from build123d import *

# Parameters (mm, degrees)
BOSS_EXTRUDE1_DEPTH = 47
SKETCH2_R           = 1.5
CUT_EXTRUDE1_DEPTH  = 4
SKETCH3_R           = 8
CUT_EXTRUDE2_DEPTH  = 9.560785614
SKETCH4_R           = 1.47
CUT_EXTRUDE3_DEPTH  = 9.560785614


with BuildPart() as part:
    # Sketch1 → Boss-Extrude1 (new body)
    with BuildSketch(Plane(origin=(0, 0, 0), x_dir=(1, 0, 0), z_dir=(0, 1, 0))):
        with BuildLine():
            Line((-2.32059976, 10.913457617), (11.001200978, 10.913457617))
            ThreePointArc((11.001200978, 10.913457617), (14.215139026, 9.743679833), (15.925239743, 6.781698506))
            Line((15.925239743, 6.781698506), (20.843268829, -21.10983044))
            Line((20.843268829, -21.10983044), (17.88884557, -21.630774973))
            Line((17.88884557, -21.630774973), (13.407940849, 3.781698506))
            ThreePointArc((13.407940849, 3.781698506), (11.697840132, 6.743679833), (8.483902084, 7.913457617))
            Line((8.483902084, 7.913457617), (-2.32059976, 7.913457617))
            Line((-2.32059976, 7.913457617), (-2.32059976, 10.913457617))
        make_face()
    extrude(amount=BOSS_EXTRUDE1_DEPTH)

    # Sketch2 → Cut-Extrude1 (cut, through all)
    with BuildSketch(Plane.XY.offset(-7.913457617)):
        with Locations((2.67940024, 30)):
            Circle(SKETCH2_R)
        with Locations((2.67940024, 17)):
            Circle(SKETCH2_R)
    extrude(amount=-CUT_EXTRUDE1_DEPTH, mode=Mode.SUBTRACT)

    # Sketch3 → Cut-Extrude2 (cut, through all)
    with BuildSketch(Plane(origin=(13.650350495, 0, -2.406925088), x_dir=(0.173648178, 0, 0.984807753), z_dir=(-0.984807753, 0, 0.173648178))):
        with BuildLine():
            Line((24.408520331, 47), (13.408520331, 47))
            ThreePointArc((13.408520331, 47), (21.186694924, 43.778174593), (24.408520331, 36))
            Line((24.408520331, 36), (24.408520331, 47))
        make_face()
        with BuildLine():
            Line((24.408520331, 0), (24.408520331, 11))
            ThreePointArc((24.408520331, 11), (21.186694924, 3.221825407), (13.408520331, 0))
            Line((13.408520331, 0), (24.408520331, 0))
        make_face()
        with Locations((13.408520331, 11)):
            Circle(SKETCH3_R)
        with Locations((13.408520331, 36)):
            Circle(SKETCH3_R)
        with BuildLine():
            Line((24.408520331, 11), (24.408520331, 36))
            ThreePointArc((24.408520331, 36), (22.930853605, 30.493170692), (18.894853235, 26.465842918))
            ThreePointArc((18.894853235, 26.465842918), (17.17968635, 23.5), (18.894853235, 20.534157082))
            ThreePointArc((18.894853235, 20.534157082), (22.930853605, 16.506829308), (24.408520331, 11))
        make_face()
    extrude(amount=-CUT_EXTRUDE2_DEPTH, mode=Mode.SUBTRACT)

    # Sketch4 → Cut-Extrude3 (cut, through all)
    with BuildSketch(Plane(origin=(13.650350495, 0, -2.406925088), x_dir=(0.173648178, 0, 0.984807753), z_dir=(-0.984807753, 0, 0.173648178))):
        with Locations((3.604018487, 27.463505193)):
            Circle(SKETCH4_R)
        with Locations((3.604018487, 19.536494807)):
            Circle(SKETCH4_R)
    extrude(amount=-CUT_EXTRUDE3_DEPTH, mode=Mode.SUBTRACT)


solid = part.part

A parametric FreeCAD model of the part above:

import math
import FreeCAD as App
import Part
import Sketcher

V = App.Vector
Q = App.Units.Quantity

doc = App.newDocument("Part")
body = doc.addObject("PartDesign::Body", "Body")

sketch1 = doc.addObject("Sketcher::SketchObject", "Sketch")
body.addObject(sketch1)
sketch1.AttachmentSupport = (doc.XZ_Plane, [""])
sketch1.MapMode = "FlatFace"
sketch1.addGeometry([
    Part.LineSegment(V(11, -10.9, 0), V(-2.3, -10.9, 0)),
    Part.LineSegment(V(-2.3, -10.9, 0), V(-2.3, -7.9, 0)),
    Part.LineSegment(V(-2.3, -7.9, 0), V(8.5, -7.9, 0)),
    Part.ArcOfCircle(Part.Circle(V(8.5, -2.9, 0), V(0, 0, 1), 5), math.radians(-90), math.radians(-10)),
    Part.LineSegment(V(13.4, -3.8, 0), V(17.9, 21.6, 0)),
    Part.LineSegment(V(17.9, 21.6, 0), V(20.8, 21.1, 0)),
    Part.LineSegment(V(20.8, 21.1, 0), V(15.9, -6.8, 0)),
    Part.ArcOfCircle(Part.Circle(V(11, -5.9, 0), V(0, 0, 1), 5), math.radians(-90), math.radians(-10)),
], False)
sketch1.addConstraint([
    Sketcher.Constraint("Coincident", 0, 2, 1, 1),
    Sketcher.Constraint("Coincident", 1, 2, 2, 1),
    Sketcher.Constraint("Tangent", 2, 2, 3, 1),
    Sketcher.Constraint("Tangent", 3, 2, 4, 1),
    Sketcher.Constraint("Coincident", 4, 2, 5, 1),
    Sketcher.Constraint("Coincident", 5, 2, 6, 1),
    Sketcher.Constraint("Tangent", 6, 2, 7, 2),
    Sketcher.Constraint("Tangent", 7, 1, 0, 1),
    Sketcher.Constraint("Horizontal", 0),
    Sketcher.Constraint("Vertical", 1),
    Sketcher.Constraint("Horizontal", 2),
    Sketcher.Constraint("Equal", 3, 7),
    Sketcher.Constraint("Perpendicular", 4, 5),
    Sketcher.Constraint("Perpendicular", 5, 6),
    Sketcher.Constraint("Radius", 3, Q("5 mm")),
    Sketcher.Constraint("DistanceY", 1, 1, 1, 2, Q("3 mm")),
    Sketcher.Constraint("Angle", 4, Q("80 deg")),
    Sketcher.Constraint("Distance", 5, Q("3 mm")),
    Sketcher.Constraint("DistanceX", 0, 2, 0, 1, Q("13.321801 mm")),
    Sketcher.Constraint("Distance", 4, Q("25.804502 mm")),
    Sketcher.Constraint("DistanceX", -1, 1, 7, 3, Q("11.001201 mm")),
    Sketcher.Constraint("DistanceY", 3, 2, -1, 1, Q("3.781699 mm")),
])
pad1 = doc.addObject("PartDesign::Pad", "Pad")
body.addObject(pad1)
pad1.Profile = sketch1
pad1.Length = 47
pad1.Reversed = True

sketch2 = doc.addObject("Sketcher::SketchObject", "Sketch001")
body.addObject(sketch2)
sketch2.AttachmentSupport = (doc.XY_Plane, [""])
sketch2.MapMode = "FlatFace"
sketch2.AttachmentOffset = App.Placement(V(0, 0, -7.913458), App.Rotation())
sketch2.addGeometry([
    Part.Circle(V(2.7, 30, 0), V(0, 0, 1), 1.5),
    Part.Circle(V(2.7, 17, 0), V(0, 0, 1), 1.5),
], False)
sketch2.addConstraint([
    Sketcher.Constraint("Equal", 0, 1),
    Sketcher.Constraint("Vertical", 0, 3, 1, 3),
    Sketcher.Constraint("Diameter", 0, Q("3 mm")),
    Sketcher.Constraint("DistanceY", -1, 1, 0, 3, Q("30 mm")),
    Sketcher.Constraint("DistanceY", -1, 1, 1, 3, Q("17 mm")),
    Sketcher.Constraint("DistanceX", -1, 1, 0, 3, Q("2.6794 mm")),
])
pocket1 = doc.addObject("PartDesign::Pocket", "Pocket")
body.addObject(pocket1)
pocket1.Profile = sketch2
pocket1.Type = "ThroughAll"

sketch3 = doc.addObject("Sketcher::SketchObject", "Sketch002")
body.addObject(sketch3)
sketch3.Placement = App.Placement(V(13.65035, 0, -2.406925), App.Rotation(V(0.173648178, 0, 0.984807753), V(0, 1, 0), V(-0.984807753, 0, 0.173648178), "ZXY"))
sketch3.addGeometry([
    Part.LineSegment(V(24.4, 47, 0), V(13.4, 47, 0)),
    Part.ArcOfCircle(Part.Circle(V(13.4, 36, 0), V(0, 0, 1), 11), math.radians(0), math.radians(90)),
    Part.LineSegment(V(24.4, 36, 0), V(24.4, 47, 0)),
    Part.LineSegment(V(24.4, 0, 0), V(24.4, 11, 0)),
    Part.ArcOfCircle(Part.Circle(V(13.4, 11, 0), V(0, 0, 1), 11), math.radians(-90), math.radians(0)),
    Part.LineSegment(V(13.4, 0, 0), V(24.4, 0, 0)),
    Part.Circle(V(13.4, 11, 0), V(0, 0, 1), 8),
    Part.Circle(V(13.4, 36, 0), V(0, 0, 1), 8),
    Part.LineSegment(V(24.4, 11, 0), V(24.4, 36, 0)),
    Part.ArcOfCircle(Part.Circle(V(13.4, 36, 0), V(0, 0, 1), 11), math.radians(-60), math.radians(0)),
    Part.ArcOfCircle(Part.Circle(V(20.6, 23.5, 0), V(0, 0, 1), 3.4), math.radians(120), math.radians(240)),
    Part.ArcOfCircle(Part.Circle(V(13.4, 11, 0), V(0, 0, 1), 11), math.radians(0), math.radians(60)),
], False)
sketch3.addConstraint([
    Sketcher.Constraint("Tangent", 0, 2, 1, 2),
    Sketcher.Constraint("Tangent", 1, 1, 2, 1),
    Sketcher.Constraint("Coincident", 2, 2, 0, 1),
    Sketcher.Constraint("Tangent", 3, 2, 4, 2),
    Sketcher.Constraint("Tangent", 4, 1, 5, 1),
    Sketcher.Constraint("Coincident", 5, 2, 3, 1),
    Sketcher.Constraint("Tangent", 8, 2, 9, 2),
    Sketcher.Constraint("Tangent", 9, 1, 10, 1),
    Sketcher.Constraint("Tangent", 10, 2, 11, 2),
    Sketcher.Constraint("Tangent", 11, 1, 8, 1),
    Sketcher.Constraint("Horizontal", 0),
    Sketcher.Constraint("Vertical", 2),
    Sketcher.Constraint("Vertical", 3),
    Sketcher.Constraint("Horizontal", 5),
    Sketcher.Constraint("Vertical", 8),
    Sketcher.Constraint("Coincident", 6, 3, 4, 3),
    Sketcher.Constraint("Coincident", 7, 3, 1, 3),
    Sketcher.Constraint("Coincident", 9, 3, 1, 3),
    Sketcher.Constraint("Coincident", 11, 3, 4, 3),
    Sketcher.Constraint("Equal", 1, 4),
    Sketcher.Constraint("Equal", 6, 7),
    Sketcher.Constraint("Equal", 4, 9),
    Sketcher.Constraint("Equal", 9, 11),
    Sketcher.Constraint("PointOnObject", 4, 1, -1),
    Sketcher.Constraint("Diameter", 6, Q("16 mm")),
    Sketcher.Constraint("Radius", 1, Q("11 mm")),
    Sketcher.Constraint("DistanceY", 8, 1, 8, 2, Q("25 mm")),
    Sketcher.Constraint("Radius", 10, Q("3.421831 mm")),
    Sketcher.Constraint("DistanceX", -1, 1, 1, 3, Q("13.40852 mm")),
])
pocket2 = doc.addObject("PartDesign::Pocket", "Pocket001")
body.addObject(pocket2)
pocket2.Profile = sketch3
pocket2.Type = "ThroughAll"

sketch4 = doc.addObject("Sketcher::SketchObject", "Sketch003")
body.addObject(sketch4)
sketch4.Placement = App.Placement(V(13.65035, 0, -2.406925), App.Rotation(V(0.173648178, 0, 0.984807753), V(0, 1, 0), V(-0.984807753, 0, 0.173648178), "ZXY"))
sketch4.addGeometry([
    Part.Circle(V(3.6, 27.5, 0), V(0, 0, 1), 1.5),
    Part.Circle(V(3.6, 19.5, 0), V(0, 0, 1), 1.5),
], False)
sketch4.addConstraint([
    Sketcher.Constraint("Equal", 0, 1),
    Sketcher.Constraint("Vertical", 0, 3, 1, 3),
    Sketcher.Constraint("Diameter", 0, Q("2.94 mm")),
    Sketcher.Constraint("DistanceX", -1, 1, 0, 3, Q("3.604018 mm")),
    Sketcher.Constraint("DistanceY", 1, 3, 0, 3, Q("7.92701 mm")),
    Sketcher.Constraint("DistanceY", -1, 1, 0, 3, Q("27.463505 mm")),
])
pocket3 = doc.addObject("PartDesign::Pocket", "Pocket002")
body.addObject(pocket3)
pocket3.Profile = sketch4
pocket3.Type = "ThroughAll"

doc.recompute()
